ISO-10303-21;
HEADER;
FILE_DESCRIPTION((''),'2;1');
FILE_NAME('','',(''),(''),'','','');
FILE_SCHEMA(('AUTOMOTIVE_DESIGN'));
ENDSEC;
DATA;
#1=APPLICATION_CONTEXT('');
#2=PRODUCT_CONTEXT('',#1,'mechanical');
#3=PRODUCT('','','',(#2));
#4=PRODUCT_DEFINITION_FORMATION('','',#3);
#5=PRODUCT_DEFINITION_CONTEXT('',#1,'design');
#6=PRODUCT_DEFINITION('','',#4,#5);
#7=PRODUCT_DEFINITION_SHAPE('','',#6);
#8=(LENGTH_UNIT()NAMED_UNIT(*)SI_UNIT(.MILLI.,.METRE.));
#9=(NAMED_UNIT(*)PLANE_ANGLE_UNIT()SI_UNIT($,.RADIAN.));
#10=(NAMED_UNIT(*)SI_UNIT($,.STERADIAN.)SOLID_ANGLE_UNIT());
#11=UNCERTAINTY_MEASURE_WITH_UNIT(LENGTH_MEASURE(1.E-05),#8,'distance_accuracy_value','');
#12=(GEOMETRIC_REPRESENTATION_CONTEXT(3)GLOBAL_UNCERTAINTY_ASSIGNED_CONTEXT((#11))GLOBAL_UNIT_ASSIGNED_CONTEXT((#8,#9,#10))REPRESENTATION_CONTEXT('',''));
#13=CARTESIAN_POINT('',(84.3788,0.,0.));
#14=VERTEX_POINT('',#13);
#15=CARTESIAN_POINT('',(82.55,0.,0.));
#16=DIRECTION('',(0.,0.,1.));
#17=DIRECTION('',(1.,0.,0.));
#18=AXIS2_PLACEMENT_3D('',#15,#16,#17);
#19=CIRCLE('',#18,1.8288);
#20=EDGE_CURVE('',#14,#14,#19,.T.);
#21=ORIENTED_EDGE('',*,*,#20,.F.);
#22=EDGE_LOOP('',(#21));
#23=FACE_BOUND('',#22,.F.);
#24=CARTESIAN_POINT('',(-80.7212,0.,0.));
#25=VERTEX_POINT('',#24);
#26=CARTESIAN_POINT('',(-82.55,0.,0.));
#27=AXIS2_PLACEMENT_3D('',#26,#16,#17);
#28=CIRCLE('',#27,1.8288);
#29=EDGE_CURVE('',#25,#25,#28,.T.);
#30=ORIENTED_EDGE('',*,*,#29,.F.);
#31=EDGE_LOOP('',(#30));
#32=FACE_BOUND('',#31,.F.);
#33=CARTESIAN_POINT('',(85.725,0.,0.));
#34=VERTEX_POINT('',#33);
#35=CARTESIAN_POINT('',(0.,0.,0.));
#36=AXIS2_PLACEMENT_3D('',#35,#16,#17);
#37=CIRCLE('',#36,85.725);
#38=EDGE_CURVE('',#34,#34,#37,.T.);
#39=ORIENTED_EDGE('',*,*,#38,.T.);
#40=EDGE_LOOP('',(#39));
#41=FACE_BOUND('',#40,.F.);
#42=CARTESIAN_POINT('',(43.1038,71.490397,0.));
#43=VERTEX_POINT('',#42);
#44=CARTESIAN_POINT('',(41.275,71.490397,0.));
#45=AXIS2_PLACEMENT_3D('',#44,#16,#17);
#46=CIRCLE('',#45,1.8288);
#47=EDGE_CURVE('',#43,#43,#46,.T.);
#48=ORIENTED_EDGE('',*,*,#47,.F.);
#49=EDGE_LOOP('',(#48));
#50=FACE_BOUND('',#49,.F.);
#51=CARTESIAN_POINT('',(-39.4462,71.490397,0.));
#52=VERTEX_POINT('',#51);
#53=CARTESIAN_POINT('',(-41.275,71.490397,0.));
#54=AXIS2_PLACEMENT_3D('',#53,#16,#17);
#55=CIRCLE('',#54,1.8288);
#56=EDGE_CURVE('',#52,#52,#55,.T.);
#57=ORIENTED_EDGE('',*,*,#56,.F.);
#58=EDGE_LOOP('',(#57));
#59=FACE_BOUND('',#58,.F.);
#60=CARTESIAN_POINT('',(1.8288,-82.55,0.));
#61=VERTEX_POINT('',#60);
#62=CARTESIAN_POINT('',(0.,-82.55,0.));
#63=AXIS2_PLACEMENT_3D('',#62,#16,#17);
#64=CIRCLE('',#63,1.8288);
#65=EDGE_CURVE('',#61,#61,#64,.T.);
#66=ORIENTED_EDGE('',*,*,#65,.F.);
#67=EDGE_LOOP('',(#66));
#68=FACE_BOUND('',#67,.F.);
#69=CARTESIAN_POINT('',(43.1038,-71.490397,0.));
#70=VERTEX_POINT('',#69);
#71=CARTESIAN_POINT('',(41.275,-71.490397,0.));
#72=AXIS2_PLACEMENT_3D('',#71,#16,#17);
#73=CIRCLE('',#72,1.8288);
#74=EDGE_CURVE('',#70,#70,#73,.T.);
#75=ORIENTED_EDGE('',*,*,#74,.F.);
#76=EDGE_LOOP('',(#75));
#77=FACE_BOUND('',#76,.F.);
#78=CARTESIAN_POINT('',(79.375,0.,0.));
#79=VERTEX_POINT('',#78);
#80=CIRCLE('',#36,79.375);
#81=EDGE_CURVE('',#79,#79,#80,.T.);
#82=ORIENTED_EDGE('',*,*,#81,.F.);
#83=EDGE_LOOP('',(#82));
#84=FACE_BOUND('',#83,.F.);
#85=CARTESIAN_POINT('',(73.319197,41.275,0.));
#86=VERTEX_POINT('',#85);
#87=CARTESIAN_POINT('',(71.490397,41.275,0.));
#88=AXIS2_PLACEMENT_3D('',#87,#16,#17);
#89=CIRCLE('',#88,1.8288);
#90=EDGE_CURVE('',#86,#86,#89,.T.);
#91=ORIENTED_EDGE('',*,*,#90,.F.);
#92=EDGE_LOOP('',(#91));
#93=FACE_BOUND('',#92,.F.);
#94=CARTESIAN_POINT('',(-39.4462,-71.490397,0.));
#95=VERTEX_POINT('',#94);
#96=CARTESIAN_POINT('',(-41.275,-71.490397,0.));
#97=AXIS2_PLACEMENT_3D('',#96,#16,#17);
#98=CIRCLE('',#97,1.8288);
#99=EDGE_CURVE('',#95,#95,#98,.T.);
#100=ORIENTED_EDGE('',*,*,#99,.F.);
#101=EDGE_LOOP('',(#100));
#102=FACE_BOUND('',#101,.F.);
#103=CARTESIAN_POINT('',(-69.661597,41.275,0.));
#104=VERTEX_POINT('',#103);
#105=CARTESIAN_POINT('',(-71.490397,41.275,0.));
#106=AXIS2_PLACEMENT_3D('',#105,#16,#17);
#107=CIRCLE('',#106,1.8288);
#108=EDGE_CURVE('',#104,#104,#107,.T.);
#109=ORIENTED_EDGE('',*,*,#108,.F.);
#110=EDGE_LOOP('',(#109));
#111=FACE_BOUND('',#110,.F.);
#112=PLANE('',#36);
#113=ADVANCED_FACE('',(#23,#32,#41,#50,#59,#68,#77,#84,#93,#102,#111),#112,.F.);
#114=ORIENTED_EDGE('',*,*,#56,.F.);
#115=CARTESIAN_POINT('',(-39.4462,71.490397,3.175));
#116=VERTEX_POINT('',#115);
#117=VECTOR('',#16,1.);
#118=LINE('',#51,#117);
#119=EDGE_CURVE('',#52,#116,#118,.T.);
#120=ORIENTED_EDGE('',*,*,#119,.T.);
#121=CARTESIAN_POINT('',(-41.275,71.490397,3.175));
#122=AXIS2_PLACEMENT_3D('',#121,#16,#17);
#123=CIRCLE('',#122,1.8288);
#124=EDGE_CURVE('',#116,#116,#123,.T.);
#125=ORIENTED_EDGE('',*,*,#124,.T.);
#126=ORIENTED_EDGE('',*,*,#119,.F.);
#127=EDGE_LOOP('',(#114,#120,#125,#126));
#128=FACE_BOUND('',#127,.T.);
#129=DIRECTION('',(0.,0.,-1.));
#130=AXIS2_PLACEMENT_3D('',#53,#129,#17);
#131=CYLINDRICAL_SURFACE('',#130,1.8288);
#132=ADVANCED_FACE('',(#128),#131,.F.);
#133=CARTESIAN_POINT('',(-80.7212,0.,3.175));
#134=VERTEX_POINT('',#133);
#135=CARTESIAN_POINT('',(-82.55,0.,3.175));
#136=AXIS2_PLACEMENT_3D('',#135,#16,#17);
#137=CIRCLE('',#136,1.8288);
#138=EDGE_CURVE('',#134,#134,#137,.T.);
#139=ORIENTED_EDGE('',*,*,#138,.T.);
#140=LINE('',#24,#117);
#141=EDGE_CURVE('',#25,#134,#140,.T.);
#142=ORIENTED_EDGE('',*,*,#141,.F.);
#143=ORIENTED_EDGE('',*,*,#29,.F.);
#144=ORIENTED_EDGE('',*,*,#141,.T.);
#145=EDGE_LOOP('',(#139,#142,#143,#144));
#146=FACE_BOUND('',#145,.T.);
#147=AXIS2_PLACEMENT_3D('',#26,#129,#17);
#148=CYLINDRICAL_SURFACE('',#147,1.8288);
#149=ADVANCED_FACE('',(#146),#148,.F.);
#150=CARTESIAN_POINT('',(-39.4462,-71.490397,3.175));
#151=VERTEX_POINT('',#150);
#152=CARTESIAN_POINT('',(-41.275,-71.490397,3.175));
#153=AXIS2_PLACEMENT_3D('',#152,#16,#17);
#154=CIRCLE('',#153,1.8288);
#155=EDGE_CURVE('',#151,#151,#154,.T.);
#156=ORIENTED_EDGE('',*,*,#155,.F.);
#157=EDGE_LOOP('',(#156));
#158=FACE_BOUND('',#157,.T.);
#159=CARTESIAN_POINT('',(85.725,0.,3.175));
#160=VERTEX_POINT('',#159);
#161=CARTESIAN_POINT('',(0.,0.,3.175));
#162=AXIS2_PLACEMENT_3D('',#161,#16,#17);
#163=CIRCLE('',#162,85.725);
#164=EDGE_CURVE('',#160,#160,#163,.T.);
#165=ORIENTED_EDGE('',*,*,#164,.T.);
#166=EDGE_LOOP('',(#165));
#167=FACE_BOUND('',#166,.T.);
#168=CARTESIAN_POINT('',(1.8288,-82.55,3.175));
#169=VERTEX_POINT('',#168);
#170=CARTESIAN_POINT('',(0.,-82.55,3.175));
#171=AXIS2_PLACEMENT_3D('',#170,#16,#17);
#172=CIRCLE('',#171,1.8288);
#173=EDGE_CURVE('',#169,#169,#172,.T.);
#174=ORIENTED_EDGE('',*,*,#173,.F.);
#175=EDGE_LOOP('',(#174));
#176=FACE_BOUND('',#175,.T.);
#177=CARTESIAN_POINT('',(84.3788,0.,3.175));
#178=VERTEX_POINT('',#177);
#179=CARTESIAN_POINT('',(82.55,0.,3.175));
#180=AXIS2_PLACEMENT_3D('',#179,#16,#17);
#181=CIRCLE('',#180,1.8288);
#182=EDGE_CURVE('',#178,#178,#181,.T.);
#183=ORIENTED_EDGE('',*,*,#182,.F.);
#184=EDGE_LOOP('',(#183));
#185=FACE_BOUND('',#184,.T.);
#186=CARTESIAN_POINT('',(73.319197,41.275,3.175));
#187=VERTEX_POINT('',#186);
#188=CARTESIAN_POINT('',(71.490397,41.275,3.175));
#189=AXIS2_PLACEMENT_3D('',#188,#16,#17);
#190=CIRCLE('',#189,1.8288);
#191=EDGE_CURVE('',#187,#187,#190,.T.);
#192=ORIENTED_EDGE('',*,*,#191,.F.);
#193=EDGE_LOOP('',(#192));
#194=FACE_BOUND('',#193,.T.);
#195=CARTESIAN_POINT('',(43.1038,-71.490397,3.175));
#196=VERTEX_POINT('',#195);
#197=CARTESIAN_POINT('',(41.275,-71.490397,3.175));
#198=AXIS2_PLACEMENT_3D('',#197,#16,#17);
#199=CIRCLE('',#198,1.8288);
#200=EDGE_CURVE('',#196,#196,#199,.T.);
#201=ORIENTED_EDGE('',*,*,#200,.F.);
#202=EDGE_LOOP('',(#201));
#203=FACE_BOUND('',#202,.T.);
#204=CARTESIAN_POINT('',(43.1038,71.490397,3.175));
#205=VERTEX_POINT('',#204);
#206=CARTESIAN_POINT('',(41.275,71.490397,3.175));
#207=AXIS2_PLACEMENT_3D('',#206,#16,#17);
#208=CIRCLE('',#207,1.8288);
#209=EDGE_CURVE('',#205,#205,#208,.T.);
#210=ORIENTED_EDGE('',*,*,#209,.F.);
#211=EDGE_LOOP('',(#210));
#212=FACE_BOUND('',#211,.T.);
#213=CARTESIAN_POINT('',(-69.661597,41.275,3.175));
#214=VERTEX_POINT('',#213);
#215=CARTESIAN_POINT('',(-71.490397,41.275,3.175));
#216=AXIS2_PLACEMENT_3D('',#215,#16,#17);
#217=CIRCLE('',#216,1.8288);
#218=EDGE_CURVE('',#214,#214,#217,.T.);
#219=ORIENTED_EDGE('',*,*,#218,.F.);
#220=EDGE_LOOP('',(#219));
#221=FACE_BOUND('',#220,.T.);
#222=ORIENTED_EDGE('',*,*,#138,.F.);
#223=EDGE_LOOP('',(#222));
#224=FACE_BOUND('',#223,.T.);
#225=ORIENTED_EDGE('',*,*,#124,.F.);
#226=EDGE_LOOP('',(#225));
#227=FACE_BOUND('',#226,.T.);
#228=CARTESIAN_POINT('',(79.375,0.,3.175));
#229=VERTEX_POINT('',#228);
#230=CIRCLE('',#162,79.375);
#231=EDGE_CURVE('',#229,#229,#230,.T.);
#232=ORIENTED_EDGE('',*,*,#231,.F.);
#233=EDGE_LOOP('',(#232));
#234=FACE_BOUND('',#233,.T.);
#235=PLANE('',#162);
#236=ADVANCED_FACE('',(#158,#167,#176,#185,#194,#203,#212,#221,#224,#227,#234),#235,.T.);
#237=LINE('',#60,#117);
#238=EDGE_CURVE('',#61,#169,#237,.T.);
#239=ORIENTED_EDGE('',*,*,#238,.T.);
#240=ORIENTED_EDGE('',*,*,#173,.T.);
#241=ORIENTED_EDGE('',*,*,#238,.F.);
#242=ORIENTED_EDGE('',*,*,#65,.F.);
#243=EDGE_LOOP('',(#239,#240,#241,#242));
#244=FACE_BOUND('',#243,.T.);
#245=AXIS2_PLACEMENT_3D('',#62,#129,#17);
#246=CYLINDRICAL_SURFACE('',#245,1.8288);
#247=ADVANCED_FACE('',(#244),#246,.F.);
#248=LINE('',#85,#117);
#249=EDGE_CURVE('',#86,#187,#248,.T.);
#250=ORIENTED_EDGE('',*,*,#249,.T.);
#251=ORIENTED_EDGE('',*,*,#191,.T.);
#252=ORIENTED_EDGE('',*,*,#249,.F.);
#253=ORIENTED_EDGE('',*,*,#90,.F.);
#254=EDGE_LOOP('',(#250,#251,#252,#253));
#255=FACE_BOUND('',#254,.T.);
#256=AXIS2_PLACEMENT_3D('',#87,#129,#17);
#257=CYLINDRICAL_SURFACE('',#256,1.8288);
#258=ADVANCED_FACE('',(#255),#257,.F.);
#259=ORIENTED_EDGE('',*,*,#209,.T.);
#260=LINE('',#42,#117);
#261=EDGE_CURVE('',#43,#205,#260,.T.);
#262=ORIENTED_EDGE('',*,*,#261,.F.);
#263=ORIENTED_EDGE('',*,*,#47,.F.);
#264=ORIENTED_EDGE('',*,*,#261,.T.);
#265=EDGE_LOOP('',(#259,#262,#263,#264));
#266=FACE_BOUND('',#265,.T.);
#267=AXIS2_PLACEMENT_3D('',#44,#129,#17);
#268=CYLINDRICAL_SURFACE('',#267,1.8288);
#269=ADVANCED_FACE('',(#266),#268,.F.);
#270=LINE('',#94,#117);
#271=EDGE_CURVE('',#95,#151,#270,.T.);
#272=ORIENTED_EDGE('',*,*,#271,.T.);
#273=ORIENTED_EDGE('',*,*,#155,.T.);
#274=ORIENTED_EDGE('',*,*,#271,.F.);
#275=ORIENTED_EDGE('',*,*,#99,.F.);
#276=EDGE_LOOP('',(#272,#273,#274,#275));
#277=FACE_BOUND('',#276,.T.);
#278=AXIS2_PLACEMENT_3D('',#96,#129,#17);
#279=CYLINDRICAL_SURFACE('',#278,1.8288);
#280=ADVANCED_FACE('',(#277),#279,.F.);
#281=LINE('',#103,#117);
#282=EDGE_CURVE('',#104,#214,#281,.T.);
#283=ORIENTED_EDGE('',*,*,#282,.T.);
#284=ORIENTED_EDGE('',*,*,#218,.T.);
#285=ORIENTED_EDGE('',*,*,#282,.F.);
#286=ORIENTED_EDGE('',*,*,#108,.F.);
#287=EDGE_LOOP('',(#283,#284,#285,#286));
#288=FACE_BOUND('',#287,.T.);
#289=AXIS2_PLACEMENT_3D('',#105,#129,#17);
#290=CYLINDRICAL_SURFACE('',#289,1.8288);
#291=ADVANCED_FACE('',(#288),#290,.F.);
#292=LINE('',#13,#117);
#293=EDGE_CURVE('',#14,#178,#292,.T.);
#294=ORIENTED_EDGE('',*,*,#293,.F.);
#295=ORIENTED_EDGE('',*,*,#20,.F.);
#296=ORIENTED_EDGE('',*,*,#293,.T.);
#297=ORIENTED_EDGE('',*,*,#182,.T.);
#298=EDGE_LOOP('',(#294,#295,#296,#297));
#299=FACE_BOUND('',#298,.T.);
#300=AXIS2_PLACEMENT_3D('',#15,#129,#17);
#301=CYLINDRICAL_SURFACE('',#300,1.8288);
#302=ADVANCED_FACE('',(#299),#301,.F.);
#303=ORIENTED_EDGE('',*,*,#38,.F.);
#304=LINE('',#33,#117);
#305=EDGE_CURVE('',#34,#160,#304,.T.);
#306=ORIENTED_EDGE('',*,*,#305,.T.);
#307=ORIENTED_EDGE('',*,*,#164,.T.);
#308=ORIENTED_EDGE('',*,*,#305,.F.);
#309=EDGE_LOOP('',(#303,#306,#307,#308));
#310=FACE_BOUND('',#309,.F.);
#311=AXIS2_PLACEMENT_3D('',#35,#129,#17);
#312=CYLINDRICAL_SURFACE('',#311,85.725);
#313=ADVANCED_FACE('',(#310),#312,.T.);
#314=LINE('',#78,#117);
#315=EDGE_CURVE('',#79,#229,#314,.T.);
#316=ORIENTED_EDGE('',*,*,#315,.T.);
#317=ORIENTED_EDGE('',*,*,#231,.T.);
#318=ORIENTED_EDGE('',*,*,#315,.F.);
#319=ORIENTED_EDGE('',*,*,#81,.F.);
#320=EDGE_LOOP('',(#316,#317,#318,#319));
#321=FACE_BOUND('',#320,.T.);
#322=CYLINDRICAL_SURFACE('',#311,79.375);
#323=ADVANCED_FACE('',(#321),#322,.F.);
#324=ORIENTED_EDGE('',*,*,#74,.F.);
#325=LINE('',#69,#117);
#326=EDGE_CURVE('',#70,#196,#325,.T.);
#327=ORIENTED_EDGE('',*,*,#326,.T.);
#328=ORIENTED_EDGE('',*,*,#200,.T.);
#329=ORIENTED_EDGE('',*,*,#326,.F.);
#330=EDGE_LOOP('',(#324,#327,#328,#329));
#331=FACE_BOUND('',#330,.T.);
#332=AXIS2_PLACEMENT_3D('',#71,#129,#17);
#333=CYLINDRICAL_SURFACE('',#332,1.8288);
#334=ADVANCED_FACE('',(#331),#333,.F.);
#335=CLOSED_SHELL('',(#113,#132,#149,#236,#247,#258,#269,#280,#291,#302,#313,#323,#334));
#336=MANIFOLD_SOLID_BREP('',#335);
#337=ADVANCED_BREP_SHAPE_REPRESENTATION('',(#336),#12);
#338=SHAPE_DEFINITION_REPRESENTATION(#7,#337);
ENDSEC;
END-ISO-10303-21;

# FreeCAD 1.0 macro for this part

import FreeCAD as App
import Part
import Sketcher
Q = App.Units.Quantity

doc = App.newDocument("Part")
params = doc.addObject("Spreadsheet::Sheet", "Params")
for row, (alias, value) in enumerate([
    ("sketch1_diameter", "6.75 in"),
    ("sketch1_diameter2", "6.25 in"),
    ("sketch1_diameter3", "0.144 in"),
    ("pad1_length", "0.125 in"),
], start=1):
    params.set(f"A{row}", alias)
    params.set(f"B{row}", "=" + value)
    params.setAlias(f"B{row}", alias)

body = doc.addObject("PartDesign::Body", "Body")

sketch1 = body.newObject("Sketcher::SketchObject", "Sketch")
sketch1.AttachmentSupport = (doc.getObject("XY_Plane"), [""])
sketch1.MapMode = "FlatFace"
sketch1.addGeometry([
    Part.Circle(App.Vector(0, 0, 0), App.Vector(0, 0, 1), 85.725),
    Part.Circle(App.Vector(-41.275, -71.490397, 0), App.Vector(0, 0, 1), 1.8288),
    Part.Circle(App.Vector(0, -82.55, 0), App.Vector(0, 0, 1), 1.8288),
    Part.Circle(App.Vector(41.275, -71.490397, 0), App.Vector(0, 0, 1), 1.8288),
    Part.Circle(App.Vector(-82.55, 0, 0), App.Vector(0, 0, 1), 1.8288),
    Part.Circle(App.Vector(-71.490397, 41.275, 0), App.Vector(0, 0, 1), 1.8288),
    Part.Circle(App.Vector(-41.275, 71.490397, 0), App.Vector(0, 0, 1), 1.8288),
    Part.Circle(App.Vector(0, 0, 0), App.Vector(0, 0, 1), 79.375),
    Part.Circle(App.Vector(82.55, 0, 0), App.Vector(0, 0, 1), 1.8288),
    Part.Circle(App.Vector(41.275, 71.490397, 0), App.Vector(0, 0, 1), 1.8288),
    Part.Circle(App.Vector(71.490397, 41.275, 0), App.Vector(0, 0, 1), 1.8288),
], False)
sketch1.addConstraint([
    Sketcher.Constraint("Coincident", 0, 3, -1, 1),
    Sketcher.Constraint("Coincident", 7, 3, -1, 1),
    Sketcher.Constraint("Equal", 1, 2),
    Sketcher.Constraint("Equal", 2, 3),
    Sketcher.Constraint("Equal", 3, 4),
    Sketcher.Constraint("Equal", 4, 5),
    Sketcher.Constraint("Equal", 5, 6),
    Sketcher.Constraint("Equal", 6, 8),
    Sketcher.Constraint("Equal", 8, 9),
    Sketcher.Constraint("Equal", 9, 10),
    Sketcher.Constraint("Symmetric", 3, 3, 6, 3, -1, 1),
    Sketcher.Constraint("Symmetric", 4, 3, 8, 3, -1, 1),
    Sketcher.Constraint("Symmetric", 1, 3, 9, 3, -1, 1),
    Sketcher.Constraint("Symmetric", 1, 3, 3, 3, -2),
    Sketcher.Constraint("Symmetric", 5, 3, 10, 3, -2),
    Sketcher.Constraint("PointOnObject", 2, 3, -2),
    Sketcher.Constraint("PointOnObject", 4, 3, -1),
    Sketcher.Constraint("Diameter", 0, Q("6.75 in")),
    Sketcher.Constraint("Diameter", 7, Q("6.25 in")),
    Sketcher.Constraint("Diameter", 1, Q("0.144 in")),
    Sketcher.Constraint("DistanceY", 2, 3, -1, 1, Q("3.25 in")),
    Sketcher.Constraint("DistanceX", 4, 3, -1, 1, Q("3.25 in")),
    Sketcher.Constraint("DistanceX", 1, 3, 3, 3, Q("3.25 in")),
    Sketcher.Constraint("DistanceY", -1, 1, 5, 3, Q("1.625 in")),
    Sketcher.Constraint("DistanceY", 1, 3, -1, 1, Q("71.490397 mm")),
    Sketcher.Constraint("DistanceX", 5, 3, -1, 1, Q("71.490397 mm")),
])
sketch1.setExpression("Constraints[17]", "Params.sketch1_diameter")
sketch1.setExpression("Constraints[18]", "Params.sketch1_diameter2")
sketch1.setExpression("Constraints[19]", "Params.sketch1_diameter3")
pad1 = body.newObject("PartDesign::Pad", "Pad")
pad1.Profile = sketch1
pad1.setExpression("Length", "Params.pad1_length")

doc.recompute()
